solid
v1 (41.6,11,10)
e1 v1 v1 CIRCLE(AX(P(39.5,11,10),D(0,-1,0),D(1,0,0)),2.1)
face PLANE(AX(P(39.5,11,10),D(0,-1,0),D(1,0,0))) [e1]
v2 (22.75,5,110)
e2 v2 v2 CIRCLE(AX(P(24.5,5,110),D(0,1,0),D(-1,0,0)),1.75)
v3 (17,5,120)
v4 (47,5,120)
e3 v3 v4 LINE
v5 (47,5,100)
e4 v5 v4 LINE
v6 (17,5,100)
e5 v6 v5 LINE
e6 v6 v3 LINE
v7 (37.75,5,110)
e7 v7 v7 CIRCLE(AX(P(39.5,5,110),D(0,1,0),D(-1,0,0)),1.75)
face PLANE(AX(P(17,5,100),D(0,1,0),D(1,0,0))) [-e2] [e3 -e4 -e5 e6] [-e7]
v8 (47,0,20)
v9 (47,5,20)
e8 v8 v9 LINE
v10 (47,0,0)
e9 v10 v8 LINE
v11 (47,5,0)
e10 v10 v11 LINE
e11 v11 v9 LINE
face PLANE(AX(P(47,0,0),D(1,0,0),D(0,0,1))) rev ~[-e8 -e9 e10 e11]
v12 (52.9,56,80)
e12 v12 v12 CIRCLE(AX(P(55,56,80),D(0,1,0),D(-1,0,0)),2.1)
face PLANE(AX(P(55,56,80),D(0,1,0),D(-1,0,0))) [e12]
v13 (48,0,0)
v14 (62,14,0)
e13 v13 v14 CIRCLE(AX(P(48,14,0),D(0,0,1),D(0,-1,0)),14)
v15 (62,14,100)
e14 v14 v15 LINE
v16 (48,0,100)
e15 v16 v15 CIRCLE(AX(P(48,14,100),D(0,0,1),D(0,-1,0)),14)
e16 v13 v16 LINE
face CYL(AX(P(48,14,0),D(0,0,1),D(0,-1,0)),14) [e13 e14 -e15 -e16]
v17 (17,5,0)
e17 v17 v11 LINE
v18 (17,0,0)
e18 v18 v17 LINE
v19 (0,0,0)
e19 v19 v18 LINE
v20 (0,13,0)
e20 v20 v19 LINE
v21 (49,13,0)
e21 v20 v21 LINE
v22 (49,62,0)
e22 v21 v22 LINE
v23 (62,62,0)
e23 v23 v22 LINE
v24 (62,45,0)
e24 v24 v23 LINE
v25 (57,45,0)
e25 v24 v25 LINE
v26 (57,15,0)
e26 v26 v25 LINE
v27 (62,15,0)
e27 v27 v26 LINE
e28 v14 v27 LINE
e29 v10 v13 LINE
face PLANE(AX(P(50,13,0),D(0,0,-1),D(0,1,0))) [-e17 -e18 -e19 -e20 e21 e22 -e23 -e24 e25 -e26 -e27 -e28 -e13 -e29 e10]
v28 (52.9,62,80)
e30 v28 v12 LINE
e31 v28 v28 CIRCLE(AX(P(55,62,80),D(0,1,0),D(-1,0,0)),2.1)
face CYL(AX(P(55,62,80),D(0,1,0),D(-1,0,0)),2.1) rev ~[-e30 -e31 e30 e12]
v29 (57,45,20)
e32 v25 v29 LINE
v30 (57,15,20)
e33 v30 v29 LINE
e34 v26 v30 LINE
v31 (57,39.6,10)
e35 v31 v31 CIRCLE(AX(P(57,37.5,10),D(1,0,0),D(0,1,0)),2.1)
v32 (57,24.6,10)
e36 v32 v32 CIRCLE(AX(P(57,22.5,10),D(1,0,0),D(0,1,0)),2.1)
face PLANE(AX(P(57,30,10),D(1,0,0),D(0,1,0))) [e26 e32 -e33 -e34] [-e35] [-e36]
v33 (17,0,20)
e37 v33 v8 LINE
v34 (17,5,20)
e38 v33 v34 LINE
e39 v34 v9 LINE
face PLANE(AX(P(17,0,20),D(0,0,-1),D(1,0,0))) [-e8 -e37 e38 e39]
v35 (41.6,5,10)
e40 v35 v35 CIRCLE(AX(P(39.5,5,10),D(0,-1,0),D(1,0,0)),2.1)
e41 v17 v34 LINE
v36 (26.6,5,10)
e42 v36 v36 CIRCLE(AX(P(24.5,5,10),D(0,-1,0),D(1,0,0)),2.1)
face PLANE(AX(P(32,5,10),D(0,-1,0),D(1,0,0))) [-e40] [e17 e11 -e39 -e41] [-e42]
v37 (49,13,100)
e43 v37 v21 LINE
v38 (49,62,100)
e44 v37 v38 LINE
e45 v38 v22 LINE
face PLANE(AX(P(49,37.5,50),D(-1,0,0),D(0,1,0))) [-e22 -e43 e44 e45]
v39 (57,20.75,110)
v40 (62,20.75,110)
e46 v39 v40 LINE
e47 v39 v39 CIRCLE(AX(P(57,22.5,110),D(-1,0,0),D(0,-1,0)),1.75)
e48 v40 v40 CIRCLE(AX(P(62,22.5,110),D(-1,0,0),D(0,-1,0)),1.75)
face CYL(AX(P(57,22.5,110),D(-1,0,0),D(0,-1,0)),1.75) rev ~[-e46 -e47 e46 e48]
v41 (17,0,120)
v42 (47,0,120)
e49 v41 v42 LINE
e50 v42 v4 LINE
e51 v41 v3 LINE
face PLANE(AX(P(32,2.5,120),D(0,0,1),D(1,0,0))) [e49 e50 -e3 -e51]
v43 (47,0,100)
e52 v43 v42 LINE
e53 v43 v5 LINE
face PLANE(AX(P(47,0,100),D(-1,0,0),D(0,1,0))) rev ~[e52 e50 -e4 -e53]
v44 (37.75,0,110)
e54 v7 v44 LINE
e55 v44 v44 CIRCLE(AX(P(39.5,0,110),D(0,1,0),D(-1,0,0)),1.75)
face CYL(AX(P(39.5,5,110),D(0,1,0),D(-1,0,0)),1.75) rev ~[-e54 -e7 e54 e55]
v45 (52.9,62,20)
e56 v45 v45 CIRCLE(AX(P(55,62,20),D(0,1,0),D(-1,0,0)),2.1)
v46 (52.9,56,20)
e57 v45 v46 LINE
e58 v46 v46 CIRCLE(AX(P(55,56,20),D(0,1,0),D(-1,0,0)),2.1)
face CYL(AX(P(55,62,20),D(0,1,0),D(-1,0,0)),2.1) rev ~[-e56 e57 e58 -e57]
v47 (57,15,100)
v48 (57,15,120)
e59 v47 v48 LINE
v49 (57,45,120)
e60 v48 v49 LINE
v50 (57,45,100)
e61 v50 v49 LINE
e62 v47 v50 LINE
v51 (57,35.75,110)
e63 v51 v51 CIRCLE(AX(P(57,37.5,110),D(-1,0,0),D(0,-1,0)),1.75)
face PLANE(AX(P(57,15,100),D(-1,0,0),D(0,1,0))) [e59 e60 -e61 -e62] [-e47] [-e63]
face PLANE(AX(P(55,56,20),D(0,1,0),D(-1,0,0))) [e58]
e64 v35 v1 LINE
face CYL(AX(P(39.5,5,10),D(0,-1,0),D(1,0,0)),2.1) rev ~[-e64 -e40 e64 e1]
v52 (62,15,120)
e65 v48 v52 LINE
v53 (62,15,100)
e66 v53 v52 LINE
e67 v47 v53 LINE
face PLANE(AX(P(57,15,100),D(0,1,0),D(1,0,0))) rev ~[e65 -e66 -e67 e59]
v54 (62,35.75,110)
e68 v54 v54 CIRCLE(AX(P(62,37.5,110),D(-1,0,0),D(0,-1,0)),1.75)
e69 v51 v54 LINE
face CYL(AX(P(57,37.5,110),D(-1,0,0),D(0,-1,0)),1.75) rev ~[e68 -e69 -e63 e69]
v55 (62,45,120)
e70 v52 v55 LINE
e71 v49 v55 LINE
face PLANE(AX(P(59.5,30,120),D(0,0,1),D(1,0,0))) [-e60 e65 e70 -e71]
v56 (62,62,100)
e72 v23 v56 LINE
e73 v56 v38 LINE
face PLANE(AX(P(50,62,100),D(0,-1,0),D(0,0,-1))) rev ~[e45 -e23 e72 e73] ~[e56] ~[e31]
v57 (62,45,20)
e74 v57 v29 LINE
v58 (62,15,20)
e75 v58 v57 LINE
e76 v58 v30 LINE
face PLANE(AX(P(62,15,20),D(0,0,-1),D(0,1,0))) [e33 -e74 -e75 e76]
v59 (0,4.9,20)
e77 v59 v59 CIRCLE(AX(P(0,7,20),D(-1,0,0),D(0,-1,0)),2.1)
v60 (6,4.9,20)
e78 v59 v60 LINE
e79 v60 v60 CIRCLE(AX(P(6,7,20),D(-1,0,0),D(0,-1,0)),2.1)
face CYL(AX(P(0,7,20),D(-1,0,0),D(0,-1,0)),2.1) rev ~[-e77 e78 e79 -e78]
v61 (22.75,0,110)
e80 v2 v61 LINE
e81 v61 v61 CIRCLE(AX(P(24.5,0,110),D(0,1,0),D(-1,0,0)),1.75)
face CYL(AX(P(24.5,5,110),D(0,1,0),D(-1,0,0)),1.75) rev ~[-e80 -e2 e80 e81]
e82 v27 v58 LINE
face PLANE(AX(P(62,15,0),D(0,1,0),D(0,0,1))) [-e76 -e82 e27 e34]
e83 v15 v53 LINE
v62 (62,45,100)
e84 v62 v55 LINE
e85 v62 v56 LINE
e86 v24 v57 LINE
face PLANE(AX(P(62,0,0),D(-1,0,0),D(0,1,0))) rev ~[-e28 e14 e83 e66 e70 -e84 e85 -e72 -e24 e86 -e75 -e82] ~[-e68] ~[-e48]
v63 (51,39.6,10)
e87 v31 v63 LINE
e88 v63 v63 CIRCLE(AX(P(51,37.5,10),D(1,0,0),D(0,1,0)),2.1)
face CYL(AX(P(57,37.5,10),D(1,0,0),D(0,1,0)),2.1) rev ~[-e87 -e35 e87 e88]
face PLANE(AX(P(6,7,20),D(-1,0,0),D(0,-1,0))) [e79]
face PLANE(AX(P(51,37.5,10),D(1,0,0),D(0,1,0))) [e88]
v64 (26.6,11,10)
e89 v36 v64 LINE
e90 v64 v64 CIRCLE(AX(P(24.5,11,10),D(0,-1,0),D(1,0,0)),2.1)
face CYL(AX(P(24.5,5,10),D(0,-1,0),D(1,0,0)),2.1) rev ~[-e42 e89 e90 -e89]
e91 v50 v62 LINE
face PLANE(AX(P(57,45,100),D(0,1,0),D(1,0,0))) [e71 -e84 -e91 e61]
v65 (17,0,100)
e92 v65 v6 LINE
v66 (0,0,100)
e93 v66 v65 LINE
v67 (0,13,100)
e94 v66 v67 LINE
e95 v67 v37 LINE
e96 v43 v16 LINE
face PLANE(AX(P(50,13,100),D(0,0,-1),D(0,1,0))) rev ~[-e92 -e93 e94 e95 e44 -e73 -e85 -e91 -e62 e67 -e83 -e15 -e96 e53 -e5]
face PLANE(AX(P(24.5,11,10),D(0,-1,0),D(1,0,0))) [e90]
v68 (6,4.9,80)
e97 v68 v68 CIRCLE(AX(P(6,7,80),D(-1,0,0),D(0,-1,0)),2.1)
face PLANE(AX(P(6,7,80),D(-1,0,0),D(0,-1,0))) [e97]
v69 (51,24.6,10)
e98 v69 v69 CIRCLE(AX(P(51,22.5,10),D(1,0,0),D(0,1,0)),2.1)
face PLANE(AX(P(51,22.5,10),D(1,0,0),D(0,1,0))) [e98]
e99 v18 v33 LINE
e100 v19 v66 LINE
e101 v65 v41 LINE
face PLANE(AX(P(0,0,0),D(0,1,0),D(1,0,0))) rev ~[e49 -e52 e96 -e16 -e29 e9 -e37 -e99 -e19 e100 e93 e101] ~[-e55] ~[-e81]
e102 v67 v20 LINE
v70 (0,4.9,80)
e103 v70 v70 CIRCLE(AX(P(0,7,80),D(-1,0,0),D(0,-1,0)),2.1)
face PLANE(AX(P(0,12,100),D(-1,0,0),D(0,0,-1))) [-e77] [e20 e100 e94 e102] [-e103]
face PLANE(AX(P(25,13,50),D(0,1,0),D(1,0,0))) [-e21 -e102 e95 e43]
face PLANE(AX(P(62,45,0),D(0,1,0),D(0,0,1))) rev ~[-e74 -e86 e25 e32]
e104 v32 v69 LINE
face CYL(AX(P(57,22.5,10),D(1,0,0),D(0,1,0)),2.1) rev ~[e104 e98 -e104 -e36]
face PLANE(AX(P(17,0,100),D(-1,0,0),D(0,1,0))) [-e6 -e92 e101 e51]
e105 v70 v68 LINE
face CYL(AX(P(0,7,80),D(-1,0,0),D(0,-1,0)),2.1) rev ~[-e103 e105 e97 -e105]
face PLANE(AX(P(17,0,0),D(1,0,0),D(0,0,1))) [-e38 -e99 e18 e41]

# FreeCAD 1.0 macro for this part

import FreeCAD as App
import Part
import Sketcher
from FreeCAD import Vector
Q = App.Units.Quantity


def edges_at(feature, points):
    """Names of the edges that pass closest to the given points."""
    edges = feature.Shape.Edges
    near = lambda p: min(range(len(edges)), key=lambda i: edges[i].distToShape(Part.Vertex(*p))[0])
    return sorted({f"Edge{near(p) + 1}" for p in points})


def add_polygon(sketch, points):
    """Adds a closed chain of lines whose ends are joined by coincident constraints."""
    first, n = sketch.GeometryCount, len(points)
    for a, b in zip(points, points[1:] + points[:1]):
        sketch.addGeometry(Part.LineSegment(App.Vector(*a, 0), App.Vector(*b, 0)), False)
    for i in range(n):
        sketch.addConstraint(Sketcher.Constraint("Coincident", first + i, 2, first + (i + 1) % n, 1))

doc = App.newDocument("Part")
body = doc.addObject("PartDesign::Body", "Body")

# Sketch on XY plane
sketch1 = body.newObject("Sketcher::SketchObject", "Sketch")
sketch1.AttachmentSupport = (doc.getObject("XY_Plane"), [""])
sketch1.MapMode = "FlatFace"
add_polygon(sketch1, [(0, 62), (0, 0), (62, 0), (62, 62)])  # lines 0-3
sketch1.addConstraint([
    Sketcher.Constraint("Vertical", 0),
    Sketcher.Constraint("Horizontal", 1),
    Sketcher.Constraint("Vertical", 2),
    Sketcher.Constraint("Horizontal", 3),
    Sketcher.Constraint("Coincident", 0, 2, -1, 1),
    Sketcher.Constraint("Equal", 3, 0),
    Sketcher.Constraint("DistanceX", 1, 1, 1, 2, Q("62 mm")),
])
pad1 = body.newObject("PartDesign::Pad", "Pad")
pad1.Profile = sketch1
pad1.Length = 100

# Sketch on XY plane
sketch2 = body.newObject("Sketcher::SketchObject", "Sketch001")
sketch2.AttachmentSupport = (doc.getObject("XY_Plane"), [""])
sketch2.MapMode = "FlatFace"
sketch2.AttachmentOffset = App.Placement(Vector(0, 0, 100), App.Rotation())
add_polygon(sketch2, [(17, 5), (17, 0), (47, 0), (47, 5)])  # lines 0-3
add_polygon(sketch2, [(57, 45), (57, 15), (62, 15), (62, 45)])  # lines 4-7
sketch2.addConstraint([
    Sketcher.Constraint("Vertical", 0),
    Sketcher.Constraint("Horizontal", 1),
    Sketcher.Constraint("Vertical", 2),
    Sketcher.Constraint("Horizontal", 3),
    Sketcher.Constraint("Vertical", 4),
    Sketcher.Constraint("Horizontal", 5),
    Sketcher.Constraint("Vertical", 6),
    Sketcher.Constraint("Horizontal", 7),
    Sketcher.Constraint("PointOnObject", 0, 2, -1),
    Sketcher.Constraint("Equal", 7, 0),
    Sketcher.Constraint("Equal", 3, 4),
    Sketcher.Constraint("DistanceX", 1, 1, 1, 2, Q("30 mm")),
    Sketcher.Constraint("DistanceX", 5, 1, 5, 2, Q("5 mm")),
    Sketcher.Constraint("DistanceX", -1, 1, 0, 2, Q("17 mm")),
    Sketcher.Constraint("DistanceX", -1, 1, 4, 2, Q("57 mm")),
    Sketcher.Constraint("DistanceY", -1, 1, 4, 2, Q("15 mm")),
])
pad2 = body.newObject("PartDesign::Pad", "Pad001")
pad2.Profile = sketch2
pad2.Length = 20
doc.recompute()

fillet = body.newObject("PartDesign::Fillet", "Fillet")
fillet.Base = (pad2, edges_at(pad2, [(62, 0, 50)]))
fillet.Radius = 14

# Sketch on XY plane
sketch3 = body.newObject("Sketcher::SketchObject", "Sketch002")
sketch3.AttachmentSupport = (doc.getObject("XY_Plane"), [""])
sketch3.MapMode = "FlatFace"
sketch3.AttachmentOffset = App.Placement(Vector(0, 0, 100), App.Rotation())
add_polygon(sketch3, [(0, 62), (0, 10), (52, 10), (52, 62)])  # lines 0-3
sketch3.addConstraint([
    Sketcher.Constraint("Vertical", 0),
    Sketcher.Constraint("Horizontal", 1),
    Sketcher.Constraint("Vertical", 2),
    Sketcher.Constraint("Horizontal", 3),
    Sketcher.Constraint("PointOnObject", 0, 2, -2),
    Sketcher.Constraint("Equal", 3, 0),
    Sketcher.Constraint("DistanceX", 1, 1, 1, 2, Q("52 mm")),
    Sketcher.Constraint("DistanceY", -1, 1, 0, 2, Q("10 mm")),
])
pocket1 = body.newObject("PartDesign::Pocket", "Pocket")
pocket1.Profile = sketch3
pocket1.Length = 103

# Sketch on YZ plane
sketch4 = body.newObject("Sketcher::SketchObject", "Sketch003")
sketch4.AttachmentSupport = (doc.getObject("YZ_Plane"), [""])
sketch4.MapMode = "FlatFace"
sketch4.AttachmentOffset = App.Placement(Vector(0, 0, 57), App.Rotation())
sketch4.addGeometry([
    Part.Circle(Vector(37.5, 110, 0), Vector(0, 0, 1), 1.8),
    Part.Circle(Vector(22.5, 110, 0), Vector(0, 0, 1), 1.8),
], False)
sketch4.addConstraint([
    Sketcher.Constraint("Equal", 0, 1),
    Sketcher.Constraint("Horizontal", 0, 3, 1, 3),
    Sketcher.Constraint("Diameter", 0, Q("3.5 mm")),
    Sketcher.Constraint("DistanceY", -1, 1, 0, 3, Q("110 mm")),
    Sketcher.Constraint("DistanceX", 1, 3, 0, 3, Q("15 mm")),
    Sketcher.Constraint("DistanceX", -1, 1, 0, 3, Q("37.5 mm")),
])
pocket2 = body.newObject("PartDesign::Pocket", "Pocket001")
pocket2.Profile = sketch4
pocket2.Length = 5
pocket2.Reversed = True

# Sketch on XZ plane
sketch5 = body.newObject("Sketcher::SketchObject", "Sketch004")
sketch5.AttachmentSupport = (doc.getObject("XZ_Plane"), [""])
sketch5.MapMode = "FlatFace"
sketch5.AttachmentOffset = App.Placement(Vector(0, 0, -5), App.Rotation())
sketch5.addGeometry([
    Part.Circle(Vector(39.5, 110, 0), Vector(0, 0, 1), 1.8),
    Part.Circle(Vector(24.5, 110, 0), Vector(0, 0, 1), 1.8),
], False)
sketch5.addConstraint([
    Sketcher.Constraint("Equal", 0, 1),
    Sketcher.Constraint("Horizontal", 0, 3, 1, 3),
    Sketcher.Constraint("Diameter", 0, Q("3.5 mm")),
    Sketcher.Constraint("DistanceY", -1, 1, 0, 3, Q("110 mm")),
    Sketcher.Constraint("DistanceX", 1, 3, 0, 3, Q("15 mm")),
    Sketcher.Constraint("DistanceX", -1, 1, 0, 3, Q("39.5 mm")),
])
pocket3 = body.newObject("PartDesign::Pocket", "Pocket002")
pocket3.Profile = sketch5
pocket3.Length = 5
pocket3.Reversed = True

# Sketch on YZ plane
sketch6 = body.newObject("Sketcher::SketchObject", "Sketch005")
sketch6.AttachmentSupport = (doc.getObject("YZ_Plane"), [""])
sketch6.MapMode = "FlatFace"
sketch6.AttachmentOffset = App.Placement(Vector(0, 0, 52), App.Rotation())
add_polygon(sketch6, [(10, 0), (10, 100), (62, 100), (62, 0)])  # lines 0-3
sketch6.addConstraint([
    Sketcher.Constraint("Vertical", 0),
    Sketcher.Constraint("Horizontal", 1),
    Sketcher.Constraint("Vertical", 2),
    Sketcher.Constraint("Horizontal", 3),
    Sketcher.Constraint("PointOnObject", 2, 2, -1),
    Sketcher.Constraint("DistanceX", 1, 1, 1, 2, Q("52 mm")),
    Sketcher.Constraint("DistanceY", 0, 1, 0, 2, Q("100 mm")),
    Sketcher.Constraint("DistanceX", -1, 1, 0, 2, Q("10 mm")),
])
pad3 = body.newObject("PartDesign::Pad", "Pad002")
pad3.Profile = sketch6
pad3.Length = 2
pad3.Reversed = True

# Sketch on XZ plane
sketch7 = body.newObject("Sketcher::SketchObject", "Sketch006")
sketch7.AttachmentSupport = (doc.getObject("XZ_Plane"), [""])
sketch7.MapMode = "FlatFace"
sketch7.AttachmentOffset = App.Placement(Vector(0, 0, -10), App.Rotation())
add_polygon(sketch7, [(0, 0), (0, 100), (50, 100), (50, 0)])  # lines 0-3
sketch7.addConstraint([
    Sketcher.Constraint("Vertical", 0),
    Sketcher.Constraint("Horizontal", 1),
    Sketcher.Constraint("Vertical", 2),
    Sketcher.Constraint("Horizontal", 3),
    Sketcher.Constraint("Coincident", 3, 2, -1, 1),
    Sketcher.Constraint("DistanceX", 1, 1, 1, 2, Q("50 mm")),
    Sketcher.Constraint("DistanceY", 0, 1, 0, 2, Q("100 mm")),
])
pad4 = body.newObject("PartDesign::Pad", "Pad003")
pad4.Profile = sketch7
pad4.Length = 2
pad4.Reversed = True

# Sketch on XZ plane
sketch8 = body.newObject("Sketcher::SketchObject", "Sketch007")
sketch8.AttachmentSupport = (doc.getObject("XZ_Plane"), [""])
sketch8.MapMode = "FlatFace"
sketch8.AttachmentOffset = App.Placement(Vector(0, 0, -12), App.Rotation())
add_polygon(sketch8, [(0, 0), (0, 100), (50, 100), (50, 0)])  # lines 0-3
sketch8.addConstraint([
    Sketcher.Constraint("Vertical", 0),
    Sketcher.Constraint("Horizontal", 1),
    Sketcher.Constraint("Vertical", 2),
    Sketcher.Constraint("Horizontal", 3),
    Sketcher.Constraint("Coincident", 3, 2, -1, 1),
    Sketcher.Constraint("DistanceX", 1, 1, 1, 2, Q("50 mm")),
    Sketcher.Constraint("DistanceY", 0, 1, 0, 2, Q("100 mm")),
])
pad5 = body.newObject("PartDesign::Pad", "Pad004")
pad5.Profile = sketch8
pad5.Length = 1
pad5.Reversed = True

# Sketch on YZ plane
sketch9 = body.newObject("Sketcher::SketchObject", "Sketch008")
sketch9.AttachmentSupport = (doc.getObject("YZ_Plane"), [""])
sketch9.MapMode = "FlatFace"
sketch9.AttachmentOffset = App.Placement(Vector(0, 0, 50), App.Rotation())
add_polygon(sketch9, [(13, 0), (13, 100), (62, 100), (62, 0)])  # lines 0-3
sketch9.addConstraint([
    Sketcher.Constraint("Vertical", 0),
    Sketcher.Constraint("Horizontal", 1),
    Sketcher.Constraint("Vertical", 2),
    Sketcher.Constraint("Horizontal", 3),
    Sketcher.Constraint("PointOnObject", 2, 2, -1),
    Sketcher.Constraint("DistanceX", 1, 1, 1, 2, Q("49 mm")),
    Sketcher.Constraint("DistanceY", 0, 1, 0, 2, Q("100 mm")),
    Sketcher.Constraint("DistanceX", -1, 1, 0, 2, Q("13 mm")),
])
pad6 = body.newObject("PartDesign::Pad", "Pad005")
pad6.Profile = sketch9
pad6.Length = 1
pad6.Reversed = True

# Sketch on YZ plane
sketch10 = body.newObject("Sketcher::SketchObject", "Sketch009")
sketch10.AttachmentSupport = (doc.getObject("YZ_Plane"), [""])
sketch10.MapMode = "FlatFace"
sketch10.addGeometry([
    Part.Circle(Vector(7, 80, 0), Vector(0, 0, 1), 2.1),
    Part.Circle(Vector(7, 20, 0), Vector(0, 0, 1), 2.1),
], False)
sketch10.addConstraint([
    Sketcher.Constraint("Equal", 0, 1),
    Sketcher.Constraint("Vertical", 0, 3, 1, 3),
    Sketcher.Constraint("Diameter", 0, Q("4.2 mm")),
    Sketcher.Constraint("DistanceX", -1, 1, 0, 3, Q("7 mm")),
    Sketcher.Constraint("DistanceY", -1, 1, 0, 3, Q("80 mm")),
    Sketcher.Constraint("DistanceY", -1, 1, 1, 3, Q("20 mm")),
])
pocket4 = body.newObject("PartDesign::Pocket", "Pocket003")
pocket4.Profile = sketch10
pocket4.Length = 6
pocket4.Reversed = True

# Sketch on XZ plane
sketch11 = body.newObject("Sketcher::SketchObject", "Sketch010")
sketch11.AttachmentSupport = (doc.getObject("XZ_Plane"), [""])
sketch11.MapMode = "FlatFace"
sketch11.AttachmentOffset = App.Placement(Vector(0, 0, -62), App.Rotation())
sketch11.addGeometry([
    Part.Circle(Vector(55, 80, 0), Vector(0, 0, 1), 2.1),
    Part.Circle(Vector(55, 20, 0), Vector(0, 0, 1), 2.1),
], False)
sketch11.addConstraint([
    Sketcher.Constraint("Equal", 0, 1),
    Sketcher.Constraint("Vertical", 0, 3, 1, 3),
    Sketcher.Constraint("Diameter", 0, Q("4.2 mm")),
    Sketcher.Constraint("DistanceX", -1, 1, 0, 3, Q("55 mm")),
    Sketcher.Constraint("DistanceY", -1, 1, 0, 3, Q("80 mm")),
    Sketcher.Constraint("DistanceY", -1, 1, 1, 3, Q("20 mm")),
])
pocket5 = body.newObject("PartDesign::Pocket", "Pocket004")
pocket5.Profile = sketch11
pocket5.Length = 6
pocket5.Reversed = True

# Sketch on YZ plane
sketch12 = body.newObject("Sketcher::SketchObject", "Sketch011")
sketch12.AttachmentSupport = (doc.getObject("YZ_Plane"), [""])
sketch12.MapMode = "FlatFace"
sketch12.AttachmentOffset = App.Placement(Vector(0, 0, 62), App.Rotation())
add_polygon(sketch12, [(15, 20), (15, 0), (45, 0), (45, 20)])  # lines 0-3
sketch12.addConstraint([
    Sketcher.Constraint("Vertical", 0),
    Sketcher.Constraint("Horizontal", 1),
    Sketcher.Constraint("Vertical", 2),
    Sketcher.Constraint("Horizontal", 3),
    Sketcher.Constraint("PointOnObject", 0, 2, -1),
    Sketcher.Constraint("DistanceX", 1, 1, 1, 2, Q("30 mm")),
    Sketcher.Constraint("DistanceY", 0, 2, 0, 1, Q("20 mm")),
    Sketcher.Constraint("DistanceX", -1, 1, 0, 2, Q("15 mm")),
])
pocket6 = body.newObject("PartDesign::Pocket", "Pocket005")
pocket6.Profile = sketch12
pocket6.Length = 5

# Sketch on XZ plane
sketch13 = body.newObject("Sketcher::SketchObject", "Sketch012")
sketch13.AttachmentSupport = (doc.getObject("XZ_Plane"), [""])
sketch13.MapMode = "FlatFace"
add_polygon(sketch13, [(17, 20), (17, 0), (47, 0), (47, 20)])  # lines 0-3
sketch13.addConstraint([
    Sketcher.Constraint("Vertical", 0),
    Sketcher.Constraint("Horizontal", 1),
    Sketcher.Constraint("Vertical", 2),
    Sketcher.Constraint("Horizontal", 3),
    Sketcher.Constraint("PointOnObject", 0, 2, -1),
    Sketcher.Constraint("DistanceX", 1, 1, 1, 2, Q("30 mm")),
    Sketcher.Constraint("DistanceY", 0, 2, 0, 1, Q("20 mm")),
    Sketcher.Constraint("DistanceX", -1, 1, 0, 2, Q("17 mm")),
])
pocket7 = body.newObject("PartDesign::Pocket", "Pocket006")
pocket7.Profile = sketch13
pocket7.Length = 5

# Sketch on YZ plane
sketch14 = body.newObject("Sketcher::SketchObject", "Sketch013")
sketch14.AttachmentSupport = (doc.getObject("YZ_Plane"), [""])
sketch14.MapMode = "FlatFace"
sketch14.AttachmentOffset = App.Placement(Vector(0, 0, 57), App.Rotation())
sketch14.addGeometry([
    Part.Circle(Vector(37.5, 10, 0), Vector(0, 0, 1), 2.1),
    Part.Circle(Vector(22.5, 10, 0), Vector(0, 0, 1), 2.1),
], False)
sketch14.addConstraint([
    Sketcher.Constraint("Equal", 0, 1),
    Sketcher.Constraint("Horizontal", 0, 3, 1, 3),
    Sketcher.Constraint("Diameter", 0, Q("4.2 mm")),
    Sketcher.Constraint("DistanceY", -1, 1, 0, 3, Q("10 mm")),
    Sketcher.Constraint("DistanceX", 1, 3, 0, 3, Q("15 mm")),
    Sketcher.Constraint("DistanceX", -1, 1, 0, 3, Q("37.5 mm")),
])
pocket8 = body.newObject("PartDesign::Pocket", "Pocket007")
pocket8.Profile = sketch14
pocket8.Length = 6

# Sketch on XZ plane
sketch15 = body.newObject("Sketcher::SketchObject", "Sketch014")
sketch15.AttachmentSupport = (doc.getObject("XZ_Plane"), [""])
sketch15.MapMode = "FlatFace"
sketch15.AttachmentOffset = App.Placement(Vector(0, 0, -5), App.Rotation())
sketch15.addGeometry([
    Part.Circle(Vector(39.5, 10, 0), Vector(0, 0, 1), 2.1),
    Part.Circle(Vector(24.5, 10, 0), Vector(0, 0, 1), 2.1),
], False)
sketch15.addConstraint([
    Sketcher.Constraint("Equal", 0, 1),
    Sketcher.Constraint("Horizontal", 0, 3, 1, 3),
    Sketcher.Constraint("Diameter", 0, Q("4.2 mm")),
    Sketcher.Constraint("DistanceY", -1, 1, 0, 3, Q("10 mm")),
    Sketcher.Constraint("DistanceX", 1, 3, 0, 3, Q("15 mm")),
    Sketcher.Constraint("DistanceX", -1, 1, 0, 3, Q("39.5 mm")),
])
pocket9 = body.newObject("PartDesign::Pocket", "Pocket008")
pocket9.Profile = sketch15
pocket9.Length = 6

doc.recompute()
